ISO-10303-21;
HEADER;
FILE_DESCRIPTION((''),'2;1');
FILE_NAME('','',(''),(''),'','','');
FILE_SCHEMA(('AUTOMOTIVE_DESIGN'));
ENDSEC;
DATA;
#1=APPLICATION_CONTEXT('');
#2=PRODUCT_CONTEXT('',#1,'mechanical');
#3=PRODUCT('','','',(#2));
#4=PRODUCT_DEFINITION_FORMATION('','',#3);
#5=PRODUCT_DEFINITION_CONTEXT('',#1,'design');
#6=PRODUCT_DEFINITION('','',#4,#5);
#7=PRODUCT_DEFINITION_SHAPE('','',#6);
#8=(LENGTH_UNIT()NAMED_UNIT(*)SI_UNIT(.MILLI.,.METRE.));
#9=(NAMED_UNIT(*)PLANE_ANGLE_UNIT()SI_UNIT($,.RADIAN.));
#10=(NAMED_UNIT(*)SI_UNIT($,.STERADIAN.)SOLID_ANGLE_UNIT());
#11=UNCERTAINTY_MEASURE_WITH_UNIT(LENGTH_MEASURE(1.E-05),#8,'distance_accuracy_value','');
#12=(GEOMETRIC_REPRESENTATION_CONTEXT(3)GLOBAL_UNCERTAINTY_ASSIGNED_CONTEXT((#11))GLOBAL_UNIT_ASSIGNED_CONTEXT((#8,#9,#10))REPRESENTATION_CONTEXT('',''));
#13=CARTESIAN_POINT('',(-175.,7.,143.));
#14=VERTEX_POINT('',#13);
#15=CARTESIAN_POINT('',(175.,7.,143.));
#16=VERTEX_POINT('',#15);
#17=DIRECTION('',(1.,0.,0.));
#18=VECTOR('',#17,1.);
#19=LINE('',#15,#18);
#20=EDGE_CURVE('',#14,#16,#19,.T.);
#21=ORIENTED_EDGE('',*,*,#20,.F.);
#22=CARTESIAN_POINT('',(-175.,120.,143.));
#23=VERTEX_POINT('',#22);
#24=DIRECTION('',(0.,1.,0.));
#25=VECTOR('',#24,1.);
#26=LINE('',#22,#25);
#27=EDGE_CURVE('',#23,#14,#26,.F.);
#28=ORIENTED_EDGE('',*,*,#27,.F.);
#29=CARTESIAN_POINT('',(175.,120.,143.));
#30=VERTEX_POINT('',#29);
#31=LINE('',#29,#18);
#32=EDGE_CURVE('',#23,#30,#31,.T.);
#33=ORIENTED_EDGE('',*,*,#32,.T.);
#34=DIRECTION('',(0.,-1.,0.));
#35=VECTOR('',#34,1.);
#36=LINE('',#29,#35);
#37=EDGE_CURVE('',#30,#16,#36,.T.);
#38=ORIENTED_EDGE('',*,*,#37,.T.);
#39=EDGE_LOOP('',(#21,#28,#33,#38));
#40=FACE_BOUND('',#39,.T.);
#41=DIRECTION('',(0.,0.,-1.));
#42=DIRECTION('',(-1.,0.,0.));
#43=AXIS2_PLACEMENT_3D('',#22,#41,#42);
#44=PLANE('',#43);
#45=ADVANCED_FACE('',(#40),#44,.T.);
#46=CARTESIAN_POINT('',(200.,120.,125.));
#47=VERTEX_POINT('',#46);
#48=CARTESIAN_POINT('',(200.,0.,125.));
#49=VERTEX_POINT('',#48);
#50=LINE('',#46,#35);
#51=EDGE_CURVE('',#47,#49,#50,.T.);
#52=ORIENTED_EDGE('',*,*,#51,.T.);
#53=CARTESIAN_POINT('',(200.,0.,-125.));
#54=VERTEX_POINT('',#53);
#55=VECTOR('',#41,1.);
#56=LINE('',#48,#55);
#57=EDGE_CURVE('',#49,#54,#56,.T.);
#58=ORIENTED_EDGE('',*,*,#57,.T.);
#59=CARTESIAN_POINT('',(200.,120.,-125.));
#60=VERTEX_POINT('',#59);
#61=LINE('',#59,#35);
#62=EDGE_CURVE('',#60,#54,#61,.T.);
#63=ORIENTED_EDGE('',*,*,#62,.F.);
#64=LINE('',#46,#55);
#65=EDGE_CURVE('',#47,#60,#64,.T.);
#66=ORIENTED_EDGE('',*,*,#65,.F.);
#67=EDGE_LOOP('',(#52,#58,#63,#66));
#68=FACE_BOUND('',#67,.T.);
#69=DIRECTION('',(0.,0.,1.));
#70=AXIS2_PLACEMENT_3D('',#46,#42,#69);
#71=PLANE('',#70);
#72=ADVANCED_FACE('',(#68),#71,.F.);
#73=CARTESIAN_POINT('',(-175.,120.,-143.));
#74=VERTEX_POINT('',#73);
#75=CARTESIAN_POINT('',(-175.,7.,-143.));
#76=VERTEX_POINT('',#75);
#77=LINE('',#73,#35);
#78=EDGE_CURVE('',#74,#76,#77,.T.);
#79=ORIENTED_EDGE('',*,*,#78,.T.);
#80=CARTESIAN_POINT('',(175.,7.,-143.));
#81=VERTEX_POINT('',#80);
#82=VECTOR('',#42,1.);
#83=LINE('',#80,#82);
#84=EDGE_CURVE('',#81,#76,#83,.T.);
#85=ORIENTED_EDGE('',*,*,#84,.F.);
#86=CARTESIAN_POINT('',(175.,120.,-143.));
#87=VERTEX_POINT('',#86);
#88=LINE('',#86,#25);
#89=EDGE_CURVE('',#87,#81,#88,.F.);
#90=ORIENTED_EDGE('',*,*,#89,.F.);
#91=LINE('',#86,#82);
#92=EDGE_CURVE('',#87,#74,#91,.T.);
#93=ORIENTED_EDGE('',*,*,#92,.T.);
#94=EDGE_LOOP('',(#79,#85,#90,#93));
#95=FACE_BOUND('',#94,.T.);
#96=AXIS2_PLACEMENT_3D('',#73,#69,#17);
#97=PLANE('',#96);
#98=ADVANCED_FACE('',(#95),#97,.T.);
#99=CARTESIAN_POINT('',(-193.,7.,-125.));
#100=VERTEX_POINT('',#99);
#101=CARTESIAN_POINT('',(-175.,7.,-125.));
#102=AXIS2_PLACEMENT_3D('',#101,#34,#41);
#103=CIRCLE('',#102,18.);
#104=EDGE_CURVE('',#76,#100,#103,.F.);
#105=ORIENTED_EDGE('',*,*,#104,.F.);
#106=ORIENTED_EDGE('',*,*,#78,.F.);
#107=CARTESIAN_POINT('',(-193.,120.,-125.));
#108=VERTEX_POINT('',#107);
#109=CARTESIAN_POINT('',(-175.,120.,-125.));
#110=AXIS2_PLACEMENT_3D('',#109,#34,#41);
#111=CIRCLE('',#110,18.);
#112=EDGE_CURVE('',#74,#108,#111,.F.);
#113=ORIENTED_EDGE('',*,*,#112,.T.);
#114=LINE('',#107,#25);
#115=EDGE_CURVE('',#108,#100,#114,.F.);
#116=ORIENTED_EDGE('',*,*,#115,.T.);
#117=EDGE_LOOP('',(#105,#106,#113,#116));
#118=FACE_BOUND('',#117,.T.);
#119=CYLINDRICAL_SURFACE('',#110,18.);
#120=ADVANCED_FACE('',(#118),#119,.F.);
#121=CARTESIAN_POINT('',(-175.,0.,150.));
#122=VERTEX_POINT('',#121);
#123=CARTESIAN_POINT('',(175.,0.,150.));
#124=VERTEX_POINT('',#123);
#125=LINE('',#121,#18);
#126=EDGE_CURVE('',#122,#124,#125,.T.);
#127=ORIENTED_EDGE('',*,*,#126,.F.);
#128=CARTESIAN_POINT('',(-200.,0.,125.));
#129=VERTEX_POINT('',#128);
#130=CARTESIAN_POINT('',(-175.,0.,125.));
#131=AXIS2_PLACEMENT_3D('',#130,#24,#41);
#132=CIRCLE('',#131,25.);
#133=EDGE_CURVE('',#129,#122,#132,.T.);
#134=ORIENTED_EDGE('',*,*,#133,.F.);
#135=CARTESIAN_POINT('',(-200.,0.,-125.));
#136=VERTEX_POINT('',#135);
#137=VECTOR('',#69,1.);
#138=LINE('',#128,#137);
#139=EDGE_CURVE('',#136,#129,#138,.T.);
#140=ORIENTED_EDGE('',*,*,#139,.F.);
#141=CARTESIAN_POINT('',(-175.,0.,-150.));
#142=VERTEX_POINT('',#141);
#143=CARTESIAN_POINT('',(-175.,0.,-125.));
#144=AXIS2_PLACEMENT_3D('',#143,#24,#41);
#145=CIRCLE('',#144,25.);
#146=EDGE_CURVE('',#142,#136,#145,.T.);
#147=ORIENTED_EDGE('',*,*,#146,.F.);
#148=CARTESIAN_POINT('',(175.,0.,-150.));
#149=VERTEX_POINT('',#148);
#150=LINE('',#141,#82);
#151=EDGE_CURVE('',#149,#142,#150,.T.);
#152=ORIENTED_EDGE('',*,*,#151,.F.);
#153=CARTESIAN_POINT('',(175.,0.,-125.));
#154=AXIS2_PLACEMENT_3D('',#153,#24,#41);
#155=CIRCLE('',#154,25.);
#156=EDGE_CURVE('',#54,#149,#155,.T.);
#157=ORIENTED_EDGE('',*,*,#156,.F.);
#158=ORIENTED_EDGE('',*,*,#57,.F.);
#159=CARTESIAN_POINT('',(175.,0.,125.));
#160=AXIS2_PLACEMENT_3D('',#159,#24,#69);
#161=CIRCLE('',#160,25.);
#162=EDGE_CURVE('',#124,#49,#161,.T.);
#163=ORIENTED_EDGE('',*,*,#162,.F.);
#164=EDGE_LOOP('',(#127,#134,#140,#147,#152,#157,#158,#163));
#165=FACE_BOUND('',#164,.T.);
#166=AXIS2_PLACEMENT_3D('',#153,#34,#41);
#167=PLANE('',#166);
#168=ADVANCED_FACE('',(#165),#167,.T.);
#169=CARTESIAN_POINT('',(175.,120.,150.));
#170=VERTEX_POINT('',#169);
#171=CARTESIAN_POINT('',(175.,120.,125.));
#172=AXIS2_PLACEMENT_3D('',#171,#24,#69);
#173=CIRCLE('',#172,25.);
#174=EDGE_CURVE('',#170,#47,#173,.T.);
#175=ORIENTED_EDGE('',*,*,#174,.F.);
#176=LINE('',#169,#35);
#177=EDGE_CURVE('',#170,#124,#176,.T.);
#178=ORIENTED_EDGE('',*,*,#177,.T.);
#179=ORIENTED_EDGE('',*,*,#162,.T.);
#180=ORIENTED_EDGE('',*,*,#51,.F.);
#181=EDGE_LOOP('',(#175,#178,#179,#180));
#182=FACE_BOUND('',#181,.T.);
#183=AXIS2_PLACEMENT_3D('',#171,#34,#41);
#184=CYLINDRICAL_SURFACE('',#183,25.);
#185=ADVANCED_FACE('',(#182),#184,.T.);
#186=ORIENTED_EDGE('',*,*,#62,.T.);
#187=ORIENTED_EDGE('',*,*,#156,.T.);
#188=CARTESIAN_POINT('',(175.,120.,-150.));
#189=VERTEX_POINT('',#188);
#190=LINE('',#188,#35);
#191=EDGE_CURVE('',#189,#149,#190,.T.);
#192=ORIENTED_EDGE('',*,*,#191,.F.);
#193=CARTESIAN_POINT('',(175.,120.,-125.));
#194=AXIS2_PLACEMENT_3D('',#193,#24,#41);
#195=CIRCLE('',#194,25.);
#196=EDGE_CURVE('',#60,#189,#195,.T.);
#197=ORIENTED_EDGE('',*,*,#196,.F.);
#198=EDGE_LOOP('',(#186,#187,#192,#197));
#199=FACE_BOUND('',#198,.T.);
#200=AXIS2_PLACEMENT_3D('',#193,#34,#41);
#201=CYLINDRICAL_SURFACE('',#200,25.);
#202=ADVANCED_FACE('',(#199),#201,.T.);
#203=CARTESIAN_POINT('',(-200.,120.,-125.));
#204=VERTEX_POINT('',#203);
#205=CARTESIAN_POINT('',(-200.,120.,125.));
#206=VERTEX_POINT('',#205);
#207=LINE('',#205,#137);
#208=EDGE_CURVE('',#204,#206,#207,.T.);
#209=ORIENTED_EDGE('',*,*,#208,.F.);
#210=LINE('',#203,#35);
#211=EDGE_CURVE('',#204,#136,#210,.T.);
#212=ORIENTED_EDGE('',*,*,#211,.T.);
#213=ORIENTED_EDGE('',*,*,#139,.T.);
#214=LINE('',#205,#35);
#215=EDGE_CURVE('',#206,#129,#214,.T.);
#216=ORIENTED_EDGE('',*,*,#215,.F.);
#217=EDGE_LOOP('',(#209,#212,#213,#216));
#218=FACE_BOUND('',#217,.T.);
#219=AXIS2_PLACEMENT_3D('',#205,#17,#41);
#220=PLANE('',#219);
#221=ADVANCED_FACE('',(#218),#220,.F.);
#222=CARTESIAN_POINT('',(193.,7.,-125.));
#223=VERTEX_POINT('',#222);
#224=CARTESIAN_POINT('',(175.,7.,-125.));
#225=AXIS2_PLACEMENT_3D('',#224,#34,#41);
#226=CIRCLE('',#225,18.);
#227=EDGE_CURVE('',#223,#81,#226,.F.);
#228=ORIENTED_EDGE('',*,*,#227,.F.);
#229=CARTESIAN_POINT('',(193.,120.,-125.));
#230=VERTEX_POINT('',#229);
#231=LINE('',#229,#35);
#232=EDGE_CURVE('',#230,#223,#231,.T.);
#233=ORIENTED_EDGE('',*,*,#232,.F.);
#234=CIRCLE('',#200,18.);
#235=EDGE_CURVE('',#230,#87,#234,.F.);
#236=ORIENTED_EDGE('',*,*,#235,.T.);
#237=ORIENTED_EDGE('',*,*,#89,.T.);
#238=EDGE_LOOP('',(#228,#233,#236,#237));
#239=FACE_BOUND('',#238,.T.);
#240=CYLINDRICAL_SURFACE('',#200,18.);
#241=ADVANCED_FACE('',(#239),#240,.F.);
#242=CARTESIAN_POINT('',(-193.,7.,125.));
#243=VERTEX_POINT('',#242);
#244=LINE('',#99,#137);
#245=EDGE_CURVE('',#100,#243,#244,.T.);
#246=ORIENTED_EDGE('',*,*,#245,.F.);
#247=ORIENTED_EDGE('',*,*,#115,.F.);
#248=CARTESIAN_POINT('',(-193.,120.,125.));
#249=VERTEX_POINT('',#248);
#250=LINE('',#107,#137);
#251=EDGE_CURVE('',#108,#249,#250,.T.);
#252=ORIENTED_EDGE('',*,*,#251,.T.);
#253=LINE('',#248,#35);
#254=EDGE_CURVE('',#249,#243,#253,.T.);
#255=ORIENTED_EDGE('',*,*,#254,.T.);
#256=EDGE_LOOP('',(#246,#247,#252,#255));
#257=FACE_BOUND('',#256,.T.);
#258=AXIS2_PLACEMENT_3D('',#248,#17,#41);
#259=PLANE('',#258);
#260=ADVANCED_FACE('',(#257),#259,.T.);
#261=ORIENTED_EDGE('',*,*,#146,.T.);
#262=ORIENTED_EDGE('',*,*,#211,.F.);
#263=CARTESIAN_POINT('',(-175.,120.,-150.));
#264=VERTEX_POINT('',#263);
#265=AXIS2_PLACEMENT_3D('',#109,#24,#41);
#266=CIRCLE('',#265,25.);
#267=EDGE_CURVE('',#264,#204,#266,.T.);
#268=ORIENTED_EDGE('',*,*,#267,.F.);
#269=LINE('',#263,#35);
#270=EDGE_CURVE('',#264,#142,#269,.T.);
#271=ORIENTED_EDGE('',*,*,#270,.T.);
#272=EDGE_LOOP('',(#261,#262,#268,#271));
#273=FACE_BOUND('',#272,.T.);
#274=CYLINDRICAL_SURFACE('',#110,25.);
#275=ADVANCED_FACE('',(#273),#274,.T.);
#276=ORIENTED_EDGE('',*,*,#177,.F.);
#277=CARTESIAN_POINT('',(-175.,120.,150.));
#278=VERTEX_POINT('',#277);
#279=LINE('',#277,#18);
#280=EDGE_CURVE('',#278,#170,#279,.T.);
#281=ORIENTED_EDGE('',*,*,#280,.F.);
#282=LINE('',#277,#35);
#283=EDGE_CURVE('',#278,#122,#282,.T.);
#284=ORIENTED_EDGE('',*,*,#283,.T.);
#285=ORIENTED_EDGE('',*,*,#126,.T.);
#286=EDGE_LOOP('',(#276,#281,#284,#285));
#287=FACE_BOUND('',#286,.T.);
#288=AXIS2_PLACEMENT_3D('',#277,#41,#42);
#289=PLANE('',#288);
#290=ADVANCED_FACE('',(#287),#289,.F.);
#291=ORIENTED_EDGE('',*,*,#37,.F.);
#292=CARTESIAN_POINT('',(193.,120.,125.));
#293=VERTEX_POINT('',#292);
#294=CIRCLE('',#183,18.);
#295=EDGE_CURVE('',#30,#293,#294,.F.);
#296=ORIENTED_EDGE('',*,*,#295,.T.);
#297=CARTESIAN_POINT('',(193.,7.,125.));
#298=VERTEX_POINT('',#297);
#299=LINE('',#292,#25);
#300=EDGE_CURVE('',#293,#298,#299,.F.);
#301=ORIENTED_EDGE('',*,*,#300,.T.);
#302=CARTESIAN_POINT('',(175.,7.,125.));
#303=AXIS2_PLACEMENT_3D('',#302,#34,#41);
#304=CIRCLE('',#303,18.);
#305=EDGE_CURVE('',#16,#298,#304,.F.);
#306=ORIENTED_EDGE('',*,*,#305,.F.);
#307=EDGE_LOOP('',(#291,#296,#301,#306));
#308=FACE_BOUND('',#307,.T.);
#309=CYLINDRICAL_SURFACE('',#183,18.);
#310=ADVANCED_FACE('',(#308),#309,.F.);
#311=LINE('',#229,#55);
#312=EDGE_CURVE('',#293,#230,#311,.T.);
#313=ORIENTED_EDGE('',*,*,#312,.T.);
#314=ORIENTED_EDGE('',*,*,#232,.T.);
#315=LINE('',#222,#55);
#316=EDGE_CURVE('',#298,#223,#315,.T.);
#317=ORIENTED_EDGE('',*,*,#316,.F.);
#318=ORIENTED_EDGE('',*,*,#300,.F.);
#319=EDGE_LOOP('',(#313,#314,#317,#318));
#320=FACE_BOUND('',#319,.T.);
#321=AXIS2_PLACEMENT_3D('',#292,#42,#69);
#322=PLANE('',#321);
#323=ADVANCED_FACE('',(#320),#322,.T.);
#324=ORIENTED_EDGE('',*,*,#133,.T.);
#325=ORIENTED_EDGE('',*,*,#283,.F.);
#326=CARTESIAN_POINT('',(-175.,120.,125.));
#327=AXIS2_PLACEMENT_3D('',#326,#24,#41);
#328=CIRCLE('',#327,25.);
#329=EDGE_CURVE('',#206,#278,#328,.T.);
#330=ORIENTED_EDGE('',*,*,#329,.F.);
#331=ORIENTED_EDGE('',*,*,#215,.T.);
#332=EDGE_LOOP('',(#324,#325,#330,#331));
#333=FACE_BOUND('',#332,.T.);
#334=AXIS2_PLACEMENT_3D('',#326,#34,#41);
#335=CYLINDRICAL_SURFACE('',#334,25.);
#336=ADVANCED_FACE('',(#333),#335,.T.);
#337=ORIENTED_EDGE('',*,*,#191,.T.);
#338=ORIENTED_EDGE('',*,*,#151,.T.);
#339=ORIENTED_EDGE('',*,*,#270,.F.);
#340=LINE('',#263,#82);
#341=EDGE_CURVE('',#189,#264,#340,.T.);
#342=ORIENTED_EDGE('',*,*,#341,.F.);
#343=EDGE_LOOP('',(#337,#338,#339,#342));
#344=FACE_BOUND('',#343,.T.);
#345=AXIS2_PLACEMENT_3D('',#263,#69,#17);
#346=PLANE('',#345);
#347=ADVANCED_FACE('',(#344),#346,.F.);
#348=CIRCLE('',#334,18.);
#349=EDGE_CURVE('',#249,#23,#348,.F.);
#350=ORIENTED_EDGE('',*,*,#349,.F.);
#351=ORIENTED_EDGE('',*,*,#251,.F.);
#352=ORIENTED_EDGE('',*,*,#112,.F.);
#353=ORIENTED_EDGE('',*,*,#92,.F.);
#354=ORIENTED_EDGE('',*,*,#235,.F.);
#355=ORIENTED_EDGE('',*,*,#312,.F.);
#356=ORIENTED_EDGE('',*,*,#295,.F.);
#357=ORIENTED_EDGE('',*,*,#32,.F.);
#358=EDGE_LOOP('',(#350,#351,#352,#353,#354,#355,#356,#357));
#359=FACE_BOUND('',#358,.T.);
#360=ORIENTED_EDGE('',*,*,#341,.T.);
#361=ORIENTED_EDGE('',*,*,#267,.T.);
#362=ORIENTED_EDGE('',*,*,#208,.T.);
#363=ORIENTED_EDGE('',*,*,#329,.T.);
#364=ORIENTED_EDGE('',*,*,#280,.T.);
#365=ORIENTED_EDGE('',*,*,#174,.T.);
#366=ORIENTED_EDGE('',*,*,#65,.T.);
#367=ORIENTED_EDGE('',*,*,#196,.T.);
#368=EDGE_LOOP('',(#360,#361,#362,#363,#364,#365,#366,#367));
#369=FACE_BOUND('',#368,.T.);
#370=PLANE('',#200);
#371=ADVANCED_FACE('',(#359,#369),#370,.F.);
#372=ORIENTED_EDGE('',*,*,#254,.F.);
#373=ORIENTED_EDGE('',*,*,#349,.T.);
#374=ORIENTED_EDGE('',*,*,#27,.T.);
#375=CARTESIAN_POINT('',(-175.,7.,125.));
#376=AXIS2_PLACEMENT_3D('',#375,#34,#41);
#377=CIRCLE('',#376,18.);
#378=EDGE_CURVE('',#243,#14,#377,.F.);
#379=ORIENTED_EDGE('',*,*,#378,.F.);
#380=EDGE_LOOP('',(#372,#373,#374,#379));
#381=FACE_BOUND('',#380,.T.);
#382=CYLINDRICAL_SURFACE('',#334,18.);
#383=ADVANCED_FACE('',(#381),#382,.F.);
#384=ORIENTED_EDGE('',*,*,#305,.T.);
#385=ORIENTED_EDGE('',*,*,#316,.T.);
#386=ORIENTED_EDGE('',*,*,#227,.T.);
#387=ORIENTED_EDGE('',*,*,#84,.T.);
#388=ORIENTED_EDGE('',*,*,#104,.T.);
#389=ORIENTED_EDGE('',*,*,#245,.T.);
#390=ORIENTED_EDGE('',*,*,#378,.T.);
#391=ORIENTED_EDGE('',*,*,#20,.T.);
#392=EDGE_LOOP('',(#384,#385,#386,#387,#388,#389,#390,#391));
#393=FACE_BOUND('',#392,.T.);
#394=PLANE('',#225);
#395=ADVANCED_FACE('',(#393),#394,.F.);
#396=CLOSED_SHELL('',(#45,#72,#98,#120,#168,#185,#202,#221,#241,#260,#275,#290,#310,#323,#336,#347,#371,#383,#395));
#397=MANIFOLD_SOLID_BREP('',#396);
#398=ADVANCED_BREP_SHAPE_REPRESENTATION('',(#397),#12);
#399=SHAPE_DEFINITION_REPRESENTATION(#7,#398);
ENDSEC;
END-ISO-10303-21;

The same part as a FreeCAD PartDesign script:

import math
import FreeCAD as App
import Part
import Sketcher


def faces_at(feature, points):
    """Names of the faces that lie closest to the given points."""
    faces = feature.Shape.Faces
    near = lambda p: min(range(len(faces)), key=lambda i: faces[i].distToShape(Part.Vertex(*p))[0])
    return sorted({f"Face{near(p) + 1}" for p in points})

doc = App.newDocument("Part")
body = doc.addObject("PartDesign::Body", "Body")

sketch1 = body.newObject("Sketcher::SketchObject", "Sketch")
sketch1.AttachmentSupport = (doc.getObject("XZ_Plane"), [""])
sketch1.MapMode = "FlatFace"
sketch1.addGeometry([
    Part.LineSegment(App.Vector(-175, 150, 0), App.Vector(175, 150, 0)),
    Part.ArcOfCircle(Part.Circle(App.Vector(175, 125, 0), App.Vector(0, 0, 1), 25), math.radians(0), math.radians(90)),
    Part.LineSegment(App.Vector(200, 125, 0), App.Vector(200, -125, 0)),
    Part.ArcOfCircle(Part.Circle(App.Vector(175, -125, 0), App.Vector(0, 0, 1), 25), math.radians(-90), math.radians(0)),
    Part.LineSegment(App.Vector(175, -150, 0), App.Vector(-175, -150, 0)),
    Part.ArcOfCircle(Part.Circle(App.Vector(-175, -125, 0), App.Vector(0, 0, 1), 25), math.radians(180), math.radians(270)),
    Part.LineSegment(App.Vector(-200, -125, 0), App.Vector(-200, 125, 0)),
    Part.ArcOfCircle(Part.Circle(App.Vector(-175, 125, 0), App.Vector(0, 0, 1), 25), math.radians(90), math.radians(180)),
], False)
sketch1.addConstraint([
    Sketcher.Constraint("Tangent", 0, 2, 1, 2),
    Sketcher.Constraint("Tangent", 1, 1, 2, 1),
    Sketcher.Constraint("Tangent", 2, 2, 3, 2),
    Sketcher.Constraint("Tangent", 3, 1, 4, 1),
    Sketcher.Constraint("Tangent", 4, 2, 5, 2),
    Sketcher.Constraint("Tangent", 5, 1, 6, 1),
    Sketcher.Constraint("Tangent", 6, 2, 7, 2),
    Sketcher.Constraint("Tangent", 7, 1, 0, 1),
    Sketcher.Constraint("Horizontal", 0),
    Sketcher.Constraint("Vertical", 2),
    Sketcher.Constraint("Horizontal", 4),
    Sketcher.Constraint("Vertical", 6),
    Sketcher.Constraint("Equal", 1, 3),
    Sketcher.Constraint("Equal", 3, 5),
    Sketcher.Constraint("Equal", 5, 7),
    Sketcher.Constraint("Symmetric", 1, 3, 5, 3, -1, 1),
    Sketcher.Constraint("Radius", 1, 25.0),
    Sketcher.Constraint("DistanceX", 0, 1, 0, 2, 350.0),
    Sketcher.Constraint("DistanceY", 2, 2, 2, 1, 250.0),
])
pad1 = body.newObject("PartDesign::Pad", "Pad")
pad1.Profile = sketch1
pad1.Length = 120
pad1.Reversed = True
doc.recompute()

thickness = body.newObject("PartDesign::Thickness", "Thickness")
thickness.Base = (pad1, faces_at(pad1, [(0, 120, 0)]))
thickness.Value = 7
thickness.Reversed = True
thickness.Join = "Intersection"

doc.recompute()
